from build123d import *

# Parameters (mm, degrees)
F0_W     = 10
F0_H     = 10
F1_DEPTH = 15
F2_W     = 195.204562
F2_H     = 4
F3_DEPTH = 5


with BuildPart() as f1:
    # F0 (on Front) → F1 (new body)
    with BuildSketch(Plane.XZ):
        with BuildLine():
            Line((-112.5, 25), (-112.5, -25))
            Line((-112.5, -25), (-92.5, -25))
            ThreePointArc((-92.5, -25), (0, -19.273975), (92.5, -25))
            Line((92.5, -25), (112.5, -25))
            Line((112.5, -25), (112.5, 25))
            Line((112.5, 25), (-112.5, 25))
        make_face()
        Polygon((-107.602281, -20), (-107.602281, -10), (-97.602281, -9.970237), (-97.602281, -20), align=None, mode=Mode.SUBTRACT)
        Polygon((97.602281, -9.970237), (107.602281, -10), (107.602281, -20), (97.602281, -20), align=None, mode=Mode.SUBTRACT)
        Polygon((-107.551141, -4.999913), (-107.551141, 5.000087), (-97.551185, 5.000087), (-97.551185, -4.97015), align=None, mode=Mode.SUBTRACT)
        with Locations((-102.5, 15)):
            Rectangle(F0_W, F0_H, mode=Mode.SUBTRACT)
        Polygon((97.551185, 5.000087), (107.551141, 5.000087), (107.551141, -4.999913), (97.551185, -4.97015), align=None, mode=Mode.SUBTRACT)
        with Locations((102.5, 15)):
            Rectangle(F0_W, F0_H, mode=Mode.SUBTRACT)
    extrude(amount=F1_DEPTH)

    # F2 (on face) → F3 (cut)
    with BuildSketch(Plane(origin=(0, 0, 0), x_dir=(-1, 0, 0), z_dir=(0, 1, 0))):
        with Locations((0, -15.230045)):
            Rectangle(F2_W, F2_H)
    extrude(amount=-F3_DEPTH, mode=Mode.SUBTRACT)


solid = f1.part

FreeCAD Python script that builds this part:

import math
import FreeCAD as App
import Part
import Sketcher
from FreeCAD import Vector
Q = App.Units.Quantity


def add_polygon(sketch, points):
    """Adds a closed chain of lines whose ends are joined by coincident constraints."""
    first, n = sketch.GeometryCount, len(points)
    for a, b in zip(points, points[1:] + points[:1]):
        sketch.addGeometry(Part.LineSegment(App.Vector(*a, 0), App.Vector(*b, 0)), False)
    for i in range(n):
        sketch.addConstraint(Sketcher.Constraint("Coincident", first + i, 2, first + (i + 1) % n, 1))

doc = App.newDocument("Part")
body = doc.addObject("PartDesign::Body", "Body")

# Sketch on XZ plane
sketch1 = body.newObject("Sketcher::SketchObject", "Sketch")
sketch1.AttachmentSupport = (doc.getObject("XZ_Plane"), [""])
sketch1.MapMode = "FlatFace"
sketch1.addGeometry(Part.LineSegment(Vector(-112.5, 25, 0), Vector(-112.5, -25, 0)), False)  # 0
sketch1.addGeometry(Part.LineSegment(Vector(-112.5, -25, 0), Vector(-92.5, -25, 0)), False)  # 1
sketch1.addGeometry(Part.ArcOfCircle(Part.Circle(Vector(0, -769.273963, 0), Vector(0, 0, 1), 749.999988), math.radians(82.915482), math.radians(97.084518)), False)  # 2
sketch1.addGeometry(Part.LineSegment(Vector(92.5, -25, 0), Vector(112.5, -25, 0)), False)  # 3
sketch1.addGeometry(Part.LineSegment(Vector(112.5, -25, 0), Vector(112.5, 25, 0)), False)  # 4
sketch1.addGeometry(Part.LineSegment(Vector(112.5, 25, 0), Vector(-112.5, 25, 0)), False)  # 5
add_polygon(sketch1, [(-97.602281, -20), (-107.602281, -20), (-107.602281, -10), (-97.602281, -9.970237)])  # lines 6-9
add_polygon(sketch1, [(97.602281, -20), (97.602281, -9.970237), (107.602281, -10), (107.602281, -20)])  # lines 10-13
add_polygon(sketch1, [(-97.551185, -4.97015), (-107.551141, -4.999913), (-107.551141, 5.000087), (-97.551185, 5.000087)])  # lines 14-17
add_polygon(sketch1, [(-97.5, 10), (-107.5, 10), (-107.5, 20), (-97.5, 20)])  # lines 18-21
add_polygon(sketch1, [(97.551185, -4.97015), (97.551185, 5.000087), (107.551141, 5.000087), (107.551141, -4.999913)])  # lines 22-25
add_polygon(sketch1, [(107.5, 10), (97.5, 10), (97.5, 20), (107.5, 20)])  # lines 26-29
sketch1.addConstraint(Sketcher.Constraint("Coincident", 0, 2, 1, 1))
sketch1.addConstraint(Sketcher.Constraint("Coincident", 1, 2, 2, 2))
sketch1.addConstraint(Sketcher.Constraint("Coincident", 2, 1, 3, 1))
sketch1.addConstraint(Sketcher.Constraint("Coincident", 3, 2, 4, 1))
sketch1.addConstraint(Sketcher.Constraint("Coincident", 4, 2, 5, 1))
sketch1.addConstraint(Sketcher.Constraint("Coincident", 5, 2, 0, 1))
sketch1.addConstraint(Sketcher.Constraint("Vertical", 0))
sketch1.addConstraint(Sketcher.Constraint("Horizontal", 1))
sketch1.addConstraint(Sketcher.Constraint("Horizontal", 3))
sketch1.addConstraint(Sketcher.Constraint("Vertical", 4))
sketch1.addConstraint(Sketcher.Constraint("Horizontal", 5))
sketch1.addConstraint(Sketcher.Constraint("Horizontal", 6))
sketch1.addConstraint(Sketcher.Constraint("Vertical", 7))
sketch1.addConstraint(Sketcher.Constraint("Vertical", 9))
sketch1.addConstraint(Sketcher.Constraint("Vertical", 10))
sketch1.addConstraint(Sketcher.Constraint("Vertical", 12))
sketch1.addConstraint(Sketcher.Constraint("Horizontal", 13))
sketch1.addConstraint(Sketcher.Constraint("Vertical", 15))
sketch1.addConstraint(Sketcher.Constraint("Horizontal", 16))
sketch1.addConstraint(Sketcher.Constraint("Vertical", 17))
sketch1.addConstraint(Sketcher.Constraint("Horizontal", 18))
sketch1.addConstraint(Sketcher.Constraint("Vertical", 19))
sketch1.addConstraint(Sketcher.Constraint("Horizontal", 20))
sketch1.addConstraint(Sketcher.Constraint("Vertical", 21))
sketch1.addConstraint(Sketcher.Constraint("Vertical", 22))
sketch1.addConstraint(Sketcher.Constraint("Horizontal", 23))
sketch1.addConstraint(Sketcher.Constraint("Vertical", 24))
sketch1.addConstraint(Sketcher.Constraint("Horizontal", 26))
sketch1.addConstraint(Sketcher.Constraint("Vertical", 27))
sketch1.addConstraint(Sketcher.Constraint("Horizontal", 28))
sketch1.addConstraint(Sketcher.Constraint("Vertical", 29))
sketch1.addConstraint(Sketcher.Constraint("Symmetric", 0, 2, 4, 2, -1, 1))
sketch1.addConstraint(Sketcher.Constraint("Symmetric", 8, 2, 10, 2, -2))
sketch1.addConstraint(Sketcher.Constraint("Symmetric", 7, 2, 11, 2, -2))
sketch1.addConstraint(Sketcher.Constraint("Symmetric", 16, 2, 22, 2, -2))
sketch1.addConstraint(Sketcher.Constraint("Symmetric", 14, 2, 24, 2, -2))
sketch1.addConstraint(Sketcher.Constraint("Symmetric", 21, 2, 26, 2, -2))
sketch1.addConstraint(Sketcher.Constraint("Symmetric", 19, 2, 28, 2, -2))
sketch1.addConstraint(Sketcher.Constraint("PointOnObject", 2, 3, -2))
sketch1.addConstraint(Sketcher.Constraint("Parallel", 8, 14))
sketch1.addConstraint(Sketcher.Constraint("Parallel", 11, 25))
sketch1.addConstraint(Sketcher.Constraint("Horizontal", 9, 2, 12, 2))
sketch1.addConstraint(Sketcher.Constraint("Equal", 1, 3))
sketch1.addConstraint(Sketcher.Constraint("Equal", 13, 18))
sketch1.addConstraint(Sketcher.Constraint("Equal", 28, 7))
sketch1.addConstraint(Sketcher.Constraint("Equal", 12, 15))
sketch1.addConstraint(Sketcher.Constraint("Equal", 15, 19))
sketch1.addConstraint(Sketcher.Constraint("DistanceX", 1, 1, 1, 2, Q("20 mm")))
sketch1.addConstraint(Sketcher.Constraint("DistanceX", 5, 2, 5, 1, Q("225 mm")))
sketch1.addConstraint(Sketcher.Constraint("DistanceX", 6, 2, 6, 1, Q("10 mm")))
sketch1.addConstraint(Sketcher.Constraint("DistanceY", 0, 2, 0, 1, Q("50 mm")))
sketch1.addConstraint(Sketcher.Constraint("Distance", 14, Q("10 mm")))
sketch1.addConstraint(Sketcher.Constraint("DistanceY", 6, 2, -1, 1, Q("20 mm")))
sketch1.addConstraint(Sketcher.Constraint("DistanceY", -1, 1, 18, 2, Q("10 mm")))
sketch1.addConstraint(Sketcher.Constraint("DistanceX", 5, 2, 18, 2, Q("5 mm")))
sketch1.addConstraint(Sketcher.Constraint("Radius", 2, Q("749.999988 mm")))
sketch1.addConstraint(Sketcher.Constraint("DistanceY", 9, 2, 9, 1, Q("10.029763 mm")))
sketch1.addConstraint(Sketcher.Constraint("DistanceX", 6, 2, -1, 1, Q("107.602281 mm")))
sketch1.addConstraint(Sketcher.Constraint("DistanceX", 14, 2, -1, 1, Q("107.551141 mm")))
sketch1.addConstraint(Sketcher.Constraint("DistanceY", 17, 2, -1, 1, Q("4.97015 mm")))
pad1 = body.newObject("PartDesign::Pad", "Pad")
pad1.Profile = sketch1
pad1.Length = 15

# Sketch on XZ plane
sketch2 = body.newObject("Sketcher::SketchObject", "Sketch001")
sketch2.AttachmentSupport = (doc.getObject("XZ_Plane"), [""])
sketch2.MapMode = "FlatFace"
add_polygon(sketch2, [(97.602281, -13.230045), (97.602281, -17.230045), (-97.602281, -17.230045), (-97.602281, -13.230045)])  # lines 0-3
sketch2.addConstraint(Sketcher.Constraint("Vertical", 0))
sketch2.addConstraint(Sketcher.Constraint("Horizontal", 1))
sketch2.addConstraint(Sketcher.Constraint("Vertical", 2))
sketch2.addConstraint(Sketcher.Constraint("Horizontal", 3))
sketch2.addConstraint(Sketcher.Constraint("DistanceY", 0, 2, 0, 1, Q("4 mm")))
sketch2.addConstraint(Sketcher.Constraint("DistanceX", 1, 2, 1, 1, Q("195.204562 mm")))
sketch2.addConstraint(Sketcher.Constraint("DistanceX", -1, 1, 0, 2, Q("97.602281 mm")))
sketch2.addConstraint(Sketcher.Constraint("DistanceY", 0, 2, -1, 1, Q("17.230045 mm")))
pocket1 = body.newObject("PartDesign::Pocket", "Pocket")
pocket1.Profile = sketch2
pocket1.Length = 5
pocket1.Reversed = True

doc.recompute()
